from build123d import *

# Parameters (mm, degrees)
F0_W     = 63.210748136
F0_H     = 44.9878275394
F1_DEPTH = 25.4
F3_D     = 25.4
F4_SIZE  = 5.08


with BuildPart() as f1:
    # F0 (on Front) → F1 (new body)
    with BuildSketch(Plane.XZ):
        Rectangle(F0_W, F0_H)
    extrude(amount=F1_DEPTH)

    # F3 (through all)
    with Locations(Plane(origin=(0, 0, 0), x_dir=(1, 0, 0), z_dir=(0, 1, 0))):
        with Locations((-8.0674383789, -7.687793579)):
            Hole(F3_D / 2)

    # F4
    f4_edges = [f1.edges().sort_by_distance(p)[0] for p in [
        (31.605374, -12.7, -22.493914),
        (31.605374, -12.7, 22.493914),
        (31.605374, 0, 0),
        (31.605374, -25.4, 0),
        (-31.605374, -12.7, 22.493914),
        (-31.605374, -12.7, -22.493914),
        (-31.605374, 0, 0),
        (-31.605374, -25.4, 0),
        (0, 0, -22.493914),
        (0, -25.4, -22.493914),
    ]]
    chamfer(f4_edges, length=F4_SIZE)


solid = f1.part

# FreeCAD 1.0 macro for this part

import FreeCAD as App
import Part
import Sketcher
Q = App.Units.Quantity


def edges_at(feature, points):
    """Names of the edges that pass closest to the given points."""
    edges = feature.Shape.Edges
    near = lambda p: min(range(len(edges)), key=lambda i: edges[i].distToShape(Part.Vertex(*p))[0])
    return sorted({f"Edge{near(p) + 1}" for p in points})

doc = App.newDocument("Part")
body = doc.addObject("PartDesign::Body", "Body")

# Sketch on XZ plane
sketch1 = body.newObject("Sketcher::SketchObject", "Sketch")
sketch1.AttachmentSupport = (doc.getObject("XZ_Plane"), [""])
sketch1.MapMode = "FlatFace"
sketch1.addGeometry([
    Part.LineSegment(App.Vector(-31.605374, 22.493914, 0), App.Vector(-31.605374, -22.493914, 0)),
    Part.LineSegment(App.Vector(-31.605374, -22.493914, 0), App.Vector(31.605374, -22.493914, 0)),
    Part.LineSegment(App.Vector(31.605374, -22.493914, 0), App.Vector(31.605374, 22.493914, 0)),
    Part.LineSegment(App.Vector(31.605374, 22.493914, 0), App.Vector(-31.605374, 22.493914, 0)),
], False)
sketch1.addConstraint([
    Sketcher.Constraint("Coincident", 0, 2, 1, 1),
    Sketcher.Constraint("Coincident", 1, 2, 2, 1),
    Sketcher.Constraint("Coincident", 2, 2, 3, 1),
    Sketcher.Constraint("Coincident", 3, 2, 0, 1),
    Sketcher.Constraint("Vertical", 0),
    Sketcher.Constraint("Horizontal", 1),
    Sketcher.Constraint("Vertical", 2),
    Sketcher.Constraint("Horizontal", 3),
    Sketcher.Constraint("Symmetric", 0, 2, 2, 2, -1, 1),
    Sketcher.Constraint("DistanceX", 1, 1, 1, 2, Q("63.210748 mm")),
    Sketcher.Constraint("DistanceY", 0, 2, 0, 1, Q("44.987828 mm")),
])
pad1 = body.newObject("PartDesign::Pad", "Pad")
pad1.Profile = sketch1
pad1.Length = Q("1 in")

# Sketch on XZ plane
sketch2 = body.newObject("Sketcher::SketchObject", "Sketch001")
sketch2.AttachmentSupport = (doc.getObject("XZ_Plane"), [""])
sketch2.MapMode = "FlatFace"
sketch2.addGeometry(Part.Circle(App.Vector(-8.067438, 7.687794, 0), App.Vector(0, 0, 1), 12.7), False)
sketch2.addConstraint([
    Sketcher.Constraint("Diameter", 0, Q("1 in")),
    Sketcher.Constraint("DistanceX", 0, 3, -1, 1, Q("8.067438 mm")),
    Sketcher.Constraint("DistanceY", -1, 1, 0, 3, Q("7.687794 mm")),
])
doc.recompute()
hole = body.newObject("PartDesign::Hole", "Hole")
hole.Profile = sketch2
hole.ThreadType = "None"
hole.Diameter = Q("1 in")
hole.DepthType = "ThroughAll"
hole.Reversed = True
doc.recompute()

chamfer = body.newObject("PartDesign::Chamfer", "Chamfer")
chamfer.Base = (hole, edges_at(hole, [
    (31.605, -12.7, -22.494),
    (31.605, -12.7, 22.494),
    (31.605, 0, 0),
    (31.605, -25.4, 0),
    (-31.605, -12.7, 22.494),
    (-31.605, -12.7, -22.494),
    (-31.605, 0, 0),
    (-31.605, -25.4, 0),
    (0, 0, -22.494),
    (0, -25.4, -22.494),
]))
chamfer.Size = Q("0.2 in")

doc.recompute()
